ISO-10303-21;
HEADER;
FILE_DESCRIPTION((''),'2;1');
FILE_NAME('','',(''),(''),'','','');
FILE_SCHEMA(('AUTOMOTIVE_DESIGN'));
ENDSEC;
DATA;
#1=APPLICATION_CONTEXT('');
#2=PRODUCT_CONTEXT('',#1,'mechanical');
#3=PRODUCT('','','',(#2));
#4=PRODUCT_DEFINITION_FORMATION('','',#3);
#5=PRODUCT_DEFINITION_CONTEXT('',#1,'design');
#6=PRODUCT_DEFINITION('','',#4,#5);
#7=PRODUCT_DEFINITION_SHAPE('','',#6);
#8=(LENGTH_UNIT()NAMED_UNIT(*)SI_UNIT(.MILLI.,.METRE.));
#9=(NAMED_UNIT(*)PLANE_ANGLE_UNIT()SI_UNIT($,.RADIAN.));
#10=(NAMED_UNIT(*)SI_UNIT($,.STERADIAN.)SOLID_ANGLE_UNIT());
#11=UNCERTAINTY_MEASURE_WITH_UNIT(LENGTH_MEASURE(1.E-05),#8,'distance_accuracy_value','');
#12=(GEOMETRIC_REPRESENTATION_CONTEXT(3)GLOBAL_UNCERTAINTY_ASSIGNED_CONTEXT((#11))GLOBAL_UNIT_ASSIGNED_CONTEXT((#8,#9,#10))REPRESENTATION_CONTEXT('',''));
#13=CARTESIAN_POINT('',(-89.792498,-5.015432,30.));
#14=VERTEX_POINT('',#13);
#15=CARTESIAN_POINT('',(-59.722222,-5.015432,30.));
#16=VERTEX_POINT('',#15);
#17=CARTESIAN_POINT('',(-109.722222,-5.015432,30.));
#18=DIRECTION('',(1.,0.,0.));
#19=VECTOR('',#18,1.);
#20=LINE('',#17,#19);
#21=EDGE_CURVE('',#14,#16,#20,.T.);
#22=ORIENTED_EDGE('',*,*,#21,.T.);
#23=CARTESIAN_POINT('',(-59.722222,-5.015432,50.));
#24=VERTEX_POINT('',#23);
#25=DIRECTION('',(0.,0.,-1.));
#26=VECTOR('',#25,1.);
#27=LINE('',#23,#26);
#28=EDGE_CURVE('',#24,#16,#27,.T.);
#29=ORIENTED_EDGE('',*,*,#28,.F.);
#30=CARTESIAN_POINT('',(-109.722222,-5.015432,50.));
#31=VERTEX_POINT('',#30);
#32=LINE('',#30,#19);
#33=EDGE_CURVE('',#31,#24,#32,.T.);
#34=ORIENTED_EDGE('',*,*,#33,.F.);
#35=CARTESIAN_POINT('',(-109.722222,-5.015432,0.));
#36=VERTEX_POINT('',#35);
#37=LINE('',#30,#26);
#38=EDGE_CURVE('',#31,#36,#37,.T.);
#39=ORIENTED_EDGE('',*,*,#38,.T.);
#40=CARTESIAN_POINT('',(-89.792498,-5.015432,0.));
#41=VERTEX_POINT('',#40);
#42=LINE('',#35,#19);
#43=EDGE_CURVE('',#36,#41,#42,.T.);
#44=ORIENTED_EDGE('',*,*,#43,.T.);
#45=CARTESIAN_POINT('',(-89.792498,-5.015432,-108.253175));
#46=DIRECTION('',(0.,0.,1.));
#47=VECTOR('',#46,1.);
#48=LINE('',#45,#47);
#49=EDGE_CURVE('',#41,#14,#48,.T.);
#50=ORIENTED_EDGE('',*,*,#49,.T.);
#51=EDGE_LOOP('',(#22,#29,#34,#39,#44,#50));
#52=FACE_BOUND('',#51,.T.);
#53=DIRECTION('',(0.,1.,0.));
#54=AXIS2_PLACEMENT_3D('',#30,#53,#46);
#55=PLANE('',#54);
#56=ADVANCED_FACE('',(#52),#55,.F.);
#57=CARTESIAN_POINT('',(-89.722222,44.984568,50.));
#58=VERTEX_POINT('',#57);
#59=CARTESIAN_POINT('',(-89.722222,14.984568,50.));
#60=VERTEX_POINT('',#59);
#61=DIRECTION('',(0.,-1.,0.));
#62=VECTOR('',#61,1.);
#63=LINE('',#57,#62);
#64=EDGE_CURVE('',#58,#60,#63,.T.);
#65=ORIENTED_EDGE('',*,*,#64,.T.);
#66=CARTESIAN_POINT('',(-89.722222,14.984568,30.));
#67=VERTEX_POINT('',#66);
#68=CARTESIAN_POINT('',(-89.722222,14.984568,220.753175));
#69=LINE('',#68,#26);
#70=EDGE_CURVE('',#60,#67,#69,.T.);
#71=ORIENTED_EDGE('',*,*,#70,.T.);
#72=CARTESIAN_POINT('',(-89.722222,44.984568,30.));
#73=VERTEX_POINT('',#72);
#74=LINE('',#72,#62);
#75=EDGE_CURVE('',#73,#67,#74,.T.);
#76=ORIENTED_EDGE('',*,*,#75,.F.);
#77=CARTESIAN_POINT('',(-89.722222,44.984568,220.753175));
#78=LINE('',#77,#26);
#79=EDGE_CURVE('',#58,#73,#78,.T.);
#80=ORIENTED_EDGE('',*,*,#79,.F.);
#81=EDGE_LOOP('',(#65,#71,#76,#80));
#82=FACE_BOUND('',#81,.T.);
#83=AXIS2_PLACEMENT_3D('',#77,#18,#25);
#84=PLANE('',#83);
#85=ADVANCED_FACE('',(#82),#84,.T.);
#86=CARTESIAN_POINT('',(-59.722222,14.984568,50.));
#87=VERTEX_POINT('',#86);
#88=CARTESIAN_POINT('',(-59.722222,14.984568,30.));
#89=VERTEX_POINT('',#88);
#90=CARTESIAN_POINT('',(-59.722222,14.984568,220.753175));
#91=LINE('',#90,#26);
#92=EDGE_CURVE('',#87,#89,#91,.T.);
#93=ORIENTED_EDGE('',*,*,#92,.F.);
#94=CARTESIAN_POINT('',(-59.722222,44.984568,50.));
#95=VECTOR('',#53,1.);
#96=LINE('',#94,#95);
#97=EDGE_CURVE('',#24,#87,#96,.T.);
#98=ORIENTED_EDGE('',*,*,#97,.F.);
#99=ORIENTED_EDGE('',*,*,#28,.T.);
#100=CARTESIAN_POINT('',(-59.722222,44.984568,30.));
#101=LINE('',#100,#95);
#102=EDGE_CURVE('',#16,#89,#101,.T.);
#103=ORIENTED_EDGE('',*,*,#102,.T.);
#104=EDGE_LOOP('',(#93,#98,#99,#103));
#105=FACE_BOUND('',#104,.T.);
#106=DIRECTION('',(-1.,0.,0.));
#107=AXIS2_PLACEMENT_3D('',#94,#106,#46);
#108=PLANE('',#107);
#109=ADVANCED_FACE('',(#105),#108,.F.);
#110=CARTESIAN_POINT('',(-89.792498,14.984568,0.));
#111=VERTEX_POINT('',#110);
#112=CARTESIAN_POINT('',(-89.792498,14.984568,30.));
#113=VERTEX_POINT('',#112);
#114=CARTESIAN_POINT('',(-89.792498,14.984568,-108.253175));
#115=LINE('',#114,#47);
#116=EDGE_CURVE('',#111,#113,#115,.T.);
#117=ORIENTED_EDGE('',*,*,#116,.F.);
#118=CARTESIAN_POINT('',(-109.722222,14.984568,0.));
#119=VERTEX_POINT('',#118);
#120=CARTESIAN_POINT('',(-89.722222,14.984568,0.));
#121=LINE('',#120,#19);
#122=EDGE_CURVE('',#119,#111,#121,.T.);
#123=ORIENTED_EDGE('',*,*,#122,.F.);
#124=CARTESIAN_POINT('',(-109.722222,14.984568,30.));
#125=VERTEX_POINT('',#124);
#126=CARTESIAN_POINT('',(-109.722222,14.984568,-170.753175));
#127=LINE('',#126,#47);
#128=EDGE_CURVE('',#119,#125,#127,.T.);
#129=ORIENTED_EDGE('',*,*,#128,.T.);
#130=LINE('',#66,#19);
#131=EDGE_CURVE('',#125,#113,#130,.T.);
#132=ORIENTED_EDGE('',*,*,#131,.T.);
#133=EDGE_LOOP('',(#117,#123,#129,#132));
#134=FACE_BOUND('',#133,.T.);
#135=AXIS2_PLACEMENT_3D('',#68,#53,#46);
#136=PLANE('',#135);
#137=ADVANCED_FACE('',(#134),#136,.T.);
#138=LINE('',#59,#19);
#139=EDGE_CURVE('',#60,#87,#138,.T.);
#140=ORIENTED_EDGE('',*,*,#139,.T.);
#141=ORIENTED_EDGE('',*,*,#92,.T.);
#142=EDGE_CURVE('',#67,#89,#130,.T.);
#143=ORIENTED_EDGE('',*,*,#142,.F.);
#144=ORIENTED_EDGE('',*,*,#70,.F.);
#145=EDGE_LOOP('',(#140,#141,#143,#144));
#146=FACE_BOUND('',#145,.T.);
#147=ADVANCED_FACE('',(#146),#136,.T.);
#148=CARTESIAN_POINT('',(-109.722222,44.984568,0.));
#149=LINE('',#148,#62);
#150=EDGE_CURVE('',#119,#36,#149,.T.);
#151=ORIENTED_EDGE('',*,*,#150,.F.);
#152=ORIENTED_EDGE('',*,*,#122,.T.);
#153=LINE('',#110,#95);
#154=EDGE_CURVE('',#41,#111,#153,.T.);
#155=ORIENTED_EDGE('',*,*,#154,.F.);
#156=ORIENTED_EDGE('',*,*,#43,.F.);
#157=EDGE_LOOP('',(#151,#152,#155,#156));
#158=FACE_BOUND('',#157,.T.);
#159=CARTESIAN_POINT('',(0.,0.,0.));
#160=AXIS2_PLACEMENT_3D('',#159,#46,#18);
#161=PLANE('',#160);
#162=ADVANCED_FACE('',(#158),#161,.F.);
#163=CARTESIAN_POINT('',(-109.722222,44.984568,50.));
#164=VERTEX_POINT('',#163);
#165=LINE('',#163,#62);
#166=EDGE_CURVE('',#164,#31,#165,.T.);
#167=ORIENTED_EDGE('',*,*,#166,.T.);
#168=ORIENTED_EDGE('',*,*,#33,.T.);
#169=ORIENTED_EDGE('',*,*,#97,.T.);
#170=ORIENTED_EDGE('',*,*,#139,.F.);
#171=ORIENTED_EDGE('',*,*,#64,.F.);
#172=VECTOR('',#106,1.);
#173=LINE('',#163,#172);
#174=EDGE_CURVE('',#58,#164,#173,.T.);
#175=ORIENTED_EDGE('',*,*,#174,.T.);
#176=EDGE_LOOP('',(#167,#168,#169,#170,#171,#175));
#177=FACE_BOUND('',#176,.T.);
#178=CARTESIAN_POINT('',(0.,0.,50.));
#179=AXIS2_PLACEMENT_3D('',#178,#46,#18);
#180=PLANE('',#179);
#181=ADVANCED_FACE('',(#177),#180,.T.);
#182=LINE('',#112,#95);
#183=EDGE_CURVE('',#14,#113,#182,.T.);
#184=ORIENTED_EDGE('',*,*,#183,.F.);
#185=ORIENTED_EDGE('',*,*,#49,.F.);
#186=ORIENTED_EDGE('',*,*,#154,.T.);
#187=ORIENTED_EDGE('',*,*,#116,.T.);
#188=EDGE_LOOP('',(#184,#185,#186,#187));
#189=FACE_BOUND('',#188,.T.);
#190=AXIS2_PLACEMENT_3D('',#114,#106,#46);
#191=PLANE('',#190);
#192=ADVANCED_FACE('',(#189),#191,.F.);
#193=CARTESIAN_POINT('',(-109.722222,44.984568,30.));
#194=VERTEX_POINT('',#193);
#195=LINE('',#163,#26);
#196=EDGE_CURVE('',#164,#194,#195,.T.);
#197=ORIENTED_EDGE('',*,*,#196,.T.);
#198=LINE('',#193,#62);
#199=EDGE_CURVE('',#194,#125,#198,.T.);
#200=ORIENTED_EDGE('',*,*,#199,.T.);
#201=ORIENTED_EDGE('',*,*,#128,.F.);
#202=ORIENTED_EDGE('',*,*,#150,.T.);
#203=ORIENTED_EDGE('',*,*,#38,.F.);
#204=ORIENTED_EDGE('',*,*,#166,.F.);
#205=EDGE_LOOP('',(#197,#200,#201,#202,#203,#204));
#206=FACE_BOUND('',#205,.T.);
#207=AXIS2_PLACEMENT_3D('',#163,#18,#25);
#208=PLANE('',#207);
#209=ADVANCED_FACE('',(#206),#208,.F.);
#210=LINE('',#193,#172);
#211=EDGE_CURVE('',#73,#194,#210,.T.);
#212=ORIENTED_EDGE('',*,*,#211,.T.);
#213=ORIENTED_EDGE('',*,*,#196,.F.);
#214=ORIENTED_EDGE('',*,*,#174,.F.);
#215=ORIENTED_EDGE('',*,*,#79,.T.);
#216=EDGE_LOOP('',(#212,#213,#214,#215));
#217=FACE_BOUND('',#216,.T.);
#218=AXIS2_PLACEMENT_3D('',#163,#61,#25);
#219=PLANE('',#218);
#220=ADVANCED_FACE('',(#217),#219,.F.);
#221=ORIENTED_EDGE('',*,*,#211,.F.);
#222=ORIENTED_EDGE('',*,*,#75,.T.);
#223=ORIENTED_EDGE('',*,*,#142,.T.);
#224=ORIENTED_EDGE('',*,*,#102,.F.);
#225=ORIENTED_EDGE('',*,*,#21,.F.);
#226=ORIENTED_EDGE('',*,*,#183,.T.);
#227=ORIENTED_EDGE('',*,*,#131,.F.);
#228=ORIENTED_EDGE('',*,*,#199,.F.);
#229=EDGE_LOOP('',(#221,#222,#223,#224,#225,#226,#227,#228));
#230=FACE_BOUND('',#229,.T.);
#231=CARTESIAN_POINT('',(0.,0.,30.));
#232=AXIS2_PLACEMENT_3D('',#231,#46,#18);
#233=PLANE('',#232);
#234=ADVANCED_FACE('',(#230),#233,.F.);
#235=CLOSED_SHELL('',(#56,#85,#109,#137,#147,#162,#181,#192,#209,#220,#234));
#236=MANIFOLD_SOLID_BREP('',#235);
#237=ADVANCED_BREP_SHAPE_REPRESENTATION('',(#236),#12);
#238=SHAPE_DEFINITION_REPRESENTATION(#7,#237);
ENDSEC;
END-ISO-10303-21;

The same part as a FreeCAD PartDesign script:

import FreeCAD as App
import Part
import Sketcher


def add_polygon(sketch, points):
    """Adds a closed chain of lines whose ends are joined by coincident constraints."""
    first, n = sketch.GeometryCount, len(points)
    for a, b in zip(points, points[1:] + points[:1]):
        sketch.addGeometry(Part.LineSegment(App.Vector(*a, 0), App.Vector(*b, 0)), False)
    for i in range(n):
        sketch.addConstraint(Sketcher.Constraint("Coincident", first + i, 2, first + (i + 1) % n, 1))

doc = App.newDocument("Part")
body = doc.addObject("PartDesign::Body", "Body")

sketch1 = body.newObject("Sketcher::SketchObject", "Sketch")
sketch1.AttachmentSupport = (doc.getObject("XY_Plane"), [""])
sketch1.MapMode = "FlatFace"
add_polygon(sketch1, [(-110, 45), (-110, -5), (-60, -5), (-60, 45)])
sketch1.addConstraint([
    Sketcher.Constraint("Vertical", 0),
    Sketcher.Constraint("Horizontal", 1),
    Sketcher.Constraint("Vertical", 2),
    Sketcher.Constraint("Horizontal", 3),
    Sketcher.Constraint("Equal", 3, 0),
    Sketcher.Constraint("DistanceX", 1, 1, 1, 2, 50.0),
    Sketcher.Constraint("DistanceX", 0, 2, -1, 1, 109.722222),
    Sketcher.Constraint("DistanceY", 0, 2, -1, 1, 5.015432),
])
pad1 = body.newObject("PartDesign::Pad", "Pad")
pad1.Profile = sketch1
pad1.Length = 50

sketch2 = body.newObject("Sketcher::SketchObject", "Sketch001")
sketch2.AttachmentSupport = (doc.getObject("XY_Plane"), [""])
sketch2.MapMode = "FlatFace"
sketch2.AttachmentOffset = App.Placement(App.Vector(0, 0, 50), App.Rotation())
add_polygon(sketch2, [(-90, 172), (-90, 15), (67, 15), (246, 194), (89, 351)])
sketch2.addConstraint([
    Sketcher.Constraint("Vertical", 0),
    Sketcher.Constraint("Horizontal", 1),
    Sketcher.Constraint("Perpendicular", 2, 3),
    Sketcher.Constraint("Perpendicular", 3, 4),
    Sketcher.Constraint("Equal", 1, 0),
    Sketcher.Constraint("Equal", 2, 4),
    Sketcher.Constraint("DistanceX", 0, 2, 2, 2, 335.685399),
    Sketcher.Constraint("DistanceX", 1, 1, 1, 2, 156.619038),
    Sketcher.Constraint("DistanceY", -1, 1, 2, 2, 194.050929),
    Sketcher.Constraint("DistanceX", -1, 1, 3, 2, 89.344138),
])
pocket1 = body.newObject("PartDesign::Pocket", "Pocket")
pocket1.Profile = sketch2
pocket1.Type = "ThroughAll"
pocket1.Midplane = True

sketch3 = body.newObject("Sketcher::SketchObject", "Sketch002")
sketch3.AttachmentSupport = (doc.getObject("XY_Plane"), [""])
sketch3.MapMode = "FlatFace"
add_polygon(sketch3, [(37, 15), (-236, 15), (-236, 268), (37, 268)])
sketch3.addConstraint([
    Sketcher.Constraint("Horizontal", 0),
    Sketcher.Constraint("Vertical", 1),
    Sketcher.Constraint("Horizontal", 2),
    Sketcher.Constraint("Vertical", 3),
    Sketcher.Constraint("DistanceX", 0, 2, 0, 1, 273.238076),
    Sketcher.Constraint("DistanceY", 1, 1, 1, 2, 253.238076),
    Sketcher.Constraint("DistanceX", 0, 2, -1, 1, 236.34126),
    Sketcher.Constraint("DistanceY", -1, 1, 0, 2, 14.984568),
])
pocket2 = body.newObject("PartDesign::Pocket", "Pocket001")
pocket2.Profile = sketch3
pocket2.Type = "TwoLengths"
pocket2.Length = 129.695677
pocket2.Length2 = 30

sketch4 = body.newObject("Sketcher::SketchObject", "Sketch003")
sketch4.AttachmentSupport = (doc.getObject("XY_Plane"), [""])
sketch4.MapMode = "FlatFace"
add_polygon(sketch4, [(-90, -132), (-90, 142), (164, 142), (164, -132)])
sketch4.addConstraint([
    Sketcher.Constraint("Vertical", 0),
    Sketcher.Constraint("Horizontal", 1),
    Sketcher.Constraint("Vertical", 2),
    Sketcher.Constraint("Horizontal", 3),
    Sketcher.Constraint("DistanceX", 0, 2, -1, 1, 89.792498),
    Sketcher.Constraint("DistanceX", 1, 1, 1, 2, 253.382827),
    Sketcher.Constraint("DistanceY", 0, 1, 0, 2, 273.382827),
    Sketcher.Constraint("DistanceY", -1, 1, 0, 2, 141.675982),
])
pocket3 = body.newObject("PartDesign::Pocket", "Pocket002")
pocket3.Profile = sketch4
pocket3.Type = "TwoLengths"
pocket3.Length = 129.695677
pocket3.Length2 = 30

doc.recompute()
